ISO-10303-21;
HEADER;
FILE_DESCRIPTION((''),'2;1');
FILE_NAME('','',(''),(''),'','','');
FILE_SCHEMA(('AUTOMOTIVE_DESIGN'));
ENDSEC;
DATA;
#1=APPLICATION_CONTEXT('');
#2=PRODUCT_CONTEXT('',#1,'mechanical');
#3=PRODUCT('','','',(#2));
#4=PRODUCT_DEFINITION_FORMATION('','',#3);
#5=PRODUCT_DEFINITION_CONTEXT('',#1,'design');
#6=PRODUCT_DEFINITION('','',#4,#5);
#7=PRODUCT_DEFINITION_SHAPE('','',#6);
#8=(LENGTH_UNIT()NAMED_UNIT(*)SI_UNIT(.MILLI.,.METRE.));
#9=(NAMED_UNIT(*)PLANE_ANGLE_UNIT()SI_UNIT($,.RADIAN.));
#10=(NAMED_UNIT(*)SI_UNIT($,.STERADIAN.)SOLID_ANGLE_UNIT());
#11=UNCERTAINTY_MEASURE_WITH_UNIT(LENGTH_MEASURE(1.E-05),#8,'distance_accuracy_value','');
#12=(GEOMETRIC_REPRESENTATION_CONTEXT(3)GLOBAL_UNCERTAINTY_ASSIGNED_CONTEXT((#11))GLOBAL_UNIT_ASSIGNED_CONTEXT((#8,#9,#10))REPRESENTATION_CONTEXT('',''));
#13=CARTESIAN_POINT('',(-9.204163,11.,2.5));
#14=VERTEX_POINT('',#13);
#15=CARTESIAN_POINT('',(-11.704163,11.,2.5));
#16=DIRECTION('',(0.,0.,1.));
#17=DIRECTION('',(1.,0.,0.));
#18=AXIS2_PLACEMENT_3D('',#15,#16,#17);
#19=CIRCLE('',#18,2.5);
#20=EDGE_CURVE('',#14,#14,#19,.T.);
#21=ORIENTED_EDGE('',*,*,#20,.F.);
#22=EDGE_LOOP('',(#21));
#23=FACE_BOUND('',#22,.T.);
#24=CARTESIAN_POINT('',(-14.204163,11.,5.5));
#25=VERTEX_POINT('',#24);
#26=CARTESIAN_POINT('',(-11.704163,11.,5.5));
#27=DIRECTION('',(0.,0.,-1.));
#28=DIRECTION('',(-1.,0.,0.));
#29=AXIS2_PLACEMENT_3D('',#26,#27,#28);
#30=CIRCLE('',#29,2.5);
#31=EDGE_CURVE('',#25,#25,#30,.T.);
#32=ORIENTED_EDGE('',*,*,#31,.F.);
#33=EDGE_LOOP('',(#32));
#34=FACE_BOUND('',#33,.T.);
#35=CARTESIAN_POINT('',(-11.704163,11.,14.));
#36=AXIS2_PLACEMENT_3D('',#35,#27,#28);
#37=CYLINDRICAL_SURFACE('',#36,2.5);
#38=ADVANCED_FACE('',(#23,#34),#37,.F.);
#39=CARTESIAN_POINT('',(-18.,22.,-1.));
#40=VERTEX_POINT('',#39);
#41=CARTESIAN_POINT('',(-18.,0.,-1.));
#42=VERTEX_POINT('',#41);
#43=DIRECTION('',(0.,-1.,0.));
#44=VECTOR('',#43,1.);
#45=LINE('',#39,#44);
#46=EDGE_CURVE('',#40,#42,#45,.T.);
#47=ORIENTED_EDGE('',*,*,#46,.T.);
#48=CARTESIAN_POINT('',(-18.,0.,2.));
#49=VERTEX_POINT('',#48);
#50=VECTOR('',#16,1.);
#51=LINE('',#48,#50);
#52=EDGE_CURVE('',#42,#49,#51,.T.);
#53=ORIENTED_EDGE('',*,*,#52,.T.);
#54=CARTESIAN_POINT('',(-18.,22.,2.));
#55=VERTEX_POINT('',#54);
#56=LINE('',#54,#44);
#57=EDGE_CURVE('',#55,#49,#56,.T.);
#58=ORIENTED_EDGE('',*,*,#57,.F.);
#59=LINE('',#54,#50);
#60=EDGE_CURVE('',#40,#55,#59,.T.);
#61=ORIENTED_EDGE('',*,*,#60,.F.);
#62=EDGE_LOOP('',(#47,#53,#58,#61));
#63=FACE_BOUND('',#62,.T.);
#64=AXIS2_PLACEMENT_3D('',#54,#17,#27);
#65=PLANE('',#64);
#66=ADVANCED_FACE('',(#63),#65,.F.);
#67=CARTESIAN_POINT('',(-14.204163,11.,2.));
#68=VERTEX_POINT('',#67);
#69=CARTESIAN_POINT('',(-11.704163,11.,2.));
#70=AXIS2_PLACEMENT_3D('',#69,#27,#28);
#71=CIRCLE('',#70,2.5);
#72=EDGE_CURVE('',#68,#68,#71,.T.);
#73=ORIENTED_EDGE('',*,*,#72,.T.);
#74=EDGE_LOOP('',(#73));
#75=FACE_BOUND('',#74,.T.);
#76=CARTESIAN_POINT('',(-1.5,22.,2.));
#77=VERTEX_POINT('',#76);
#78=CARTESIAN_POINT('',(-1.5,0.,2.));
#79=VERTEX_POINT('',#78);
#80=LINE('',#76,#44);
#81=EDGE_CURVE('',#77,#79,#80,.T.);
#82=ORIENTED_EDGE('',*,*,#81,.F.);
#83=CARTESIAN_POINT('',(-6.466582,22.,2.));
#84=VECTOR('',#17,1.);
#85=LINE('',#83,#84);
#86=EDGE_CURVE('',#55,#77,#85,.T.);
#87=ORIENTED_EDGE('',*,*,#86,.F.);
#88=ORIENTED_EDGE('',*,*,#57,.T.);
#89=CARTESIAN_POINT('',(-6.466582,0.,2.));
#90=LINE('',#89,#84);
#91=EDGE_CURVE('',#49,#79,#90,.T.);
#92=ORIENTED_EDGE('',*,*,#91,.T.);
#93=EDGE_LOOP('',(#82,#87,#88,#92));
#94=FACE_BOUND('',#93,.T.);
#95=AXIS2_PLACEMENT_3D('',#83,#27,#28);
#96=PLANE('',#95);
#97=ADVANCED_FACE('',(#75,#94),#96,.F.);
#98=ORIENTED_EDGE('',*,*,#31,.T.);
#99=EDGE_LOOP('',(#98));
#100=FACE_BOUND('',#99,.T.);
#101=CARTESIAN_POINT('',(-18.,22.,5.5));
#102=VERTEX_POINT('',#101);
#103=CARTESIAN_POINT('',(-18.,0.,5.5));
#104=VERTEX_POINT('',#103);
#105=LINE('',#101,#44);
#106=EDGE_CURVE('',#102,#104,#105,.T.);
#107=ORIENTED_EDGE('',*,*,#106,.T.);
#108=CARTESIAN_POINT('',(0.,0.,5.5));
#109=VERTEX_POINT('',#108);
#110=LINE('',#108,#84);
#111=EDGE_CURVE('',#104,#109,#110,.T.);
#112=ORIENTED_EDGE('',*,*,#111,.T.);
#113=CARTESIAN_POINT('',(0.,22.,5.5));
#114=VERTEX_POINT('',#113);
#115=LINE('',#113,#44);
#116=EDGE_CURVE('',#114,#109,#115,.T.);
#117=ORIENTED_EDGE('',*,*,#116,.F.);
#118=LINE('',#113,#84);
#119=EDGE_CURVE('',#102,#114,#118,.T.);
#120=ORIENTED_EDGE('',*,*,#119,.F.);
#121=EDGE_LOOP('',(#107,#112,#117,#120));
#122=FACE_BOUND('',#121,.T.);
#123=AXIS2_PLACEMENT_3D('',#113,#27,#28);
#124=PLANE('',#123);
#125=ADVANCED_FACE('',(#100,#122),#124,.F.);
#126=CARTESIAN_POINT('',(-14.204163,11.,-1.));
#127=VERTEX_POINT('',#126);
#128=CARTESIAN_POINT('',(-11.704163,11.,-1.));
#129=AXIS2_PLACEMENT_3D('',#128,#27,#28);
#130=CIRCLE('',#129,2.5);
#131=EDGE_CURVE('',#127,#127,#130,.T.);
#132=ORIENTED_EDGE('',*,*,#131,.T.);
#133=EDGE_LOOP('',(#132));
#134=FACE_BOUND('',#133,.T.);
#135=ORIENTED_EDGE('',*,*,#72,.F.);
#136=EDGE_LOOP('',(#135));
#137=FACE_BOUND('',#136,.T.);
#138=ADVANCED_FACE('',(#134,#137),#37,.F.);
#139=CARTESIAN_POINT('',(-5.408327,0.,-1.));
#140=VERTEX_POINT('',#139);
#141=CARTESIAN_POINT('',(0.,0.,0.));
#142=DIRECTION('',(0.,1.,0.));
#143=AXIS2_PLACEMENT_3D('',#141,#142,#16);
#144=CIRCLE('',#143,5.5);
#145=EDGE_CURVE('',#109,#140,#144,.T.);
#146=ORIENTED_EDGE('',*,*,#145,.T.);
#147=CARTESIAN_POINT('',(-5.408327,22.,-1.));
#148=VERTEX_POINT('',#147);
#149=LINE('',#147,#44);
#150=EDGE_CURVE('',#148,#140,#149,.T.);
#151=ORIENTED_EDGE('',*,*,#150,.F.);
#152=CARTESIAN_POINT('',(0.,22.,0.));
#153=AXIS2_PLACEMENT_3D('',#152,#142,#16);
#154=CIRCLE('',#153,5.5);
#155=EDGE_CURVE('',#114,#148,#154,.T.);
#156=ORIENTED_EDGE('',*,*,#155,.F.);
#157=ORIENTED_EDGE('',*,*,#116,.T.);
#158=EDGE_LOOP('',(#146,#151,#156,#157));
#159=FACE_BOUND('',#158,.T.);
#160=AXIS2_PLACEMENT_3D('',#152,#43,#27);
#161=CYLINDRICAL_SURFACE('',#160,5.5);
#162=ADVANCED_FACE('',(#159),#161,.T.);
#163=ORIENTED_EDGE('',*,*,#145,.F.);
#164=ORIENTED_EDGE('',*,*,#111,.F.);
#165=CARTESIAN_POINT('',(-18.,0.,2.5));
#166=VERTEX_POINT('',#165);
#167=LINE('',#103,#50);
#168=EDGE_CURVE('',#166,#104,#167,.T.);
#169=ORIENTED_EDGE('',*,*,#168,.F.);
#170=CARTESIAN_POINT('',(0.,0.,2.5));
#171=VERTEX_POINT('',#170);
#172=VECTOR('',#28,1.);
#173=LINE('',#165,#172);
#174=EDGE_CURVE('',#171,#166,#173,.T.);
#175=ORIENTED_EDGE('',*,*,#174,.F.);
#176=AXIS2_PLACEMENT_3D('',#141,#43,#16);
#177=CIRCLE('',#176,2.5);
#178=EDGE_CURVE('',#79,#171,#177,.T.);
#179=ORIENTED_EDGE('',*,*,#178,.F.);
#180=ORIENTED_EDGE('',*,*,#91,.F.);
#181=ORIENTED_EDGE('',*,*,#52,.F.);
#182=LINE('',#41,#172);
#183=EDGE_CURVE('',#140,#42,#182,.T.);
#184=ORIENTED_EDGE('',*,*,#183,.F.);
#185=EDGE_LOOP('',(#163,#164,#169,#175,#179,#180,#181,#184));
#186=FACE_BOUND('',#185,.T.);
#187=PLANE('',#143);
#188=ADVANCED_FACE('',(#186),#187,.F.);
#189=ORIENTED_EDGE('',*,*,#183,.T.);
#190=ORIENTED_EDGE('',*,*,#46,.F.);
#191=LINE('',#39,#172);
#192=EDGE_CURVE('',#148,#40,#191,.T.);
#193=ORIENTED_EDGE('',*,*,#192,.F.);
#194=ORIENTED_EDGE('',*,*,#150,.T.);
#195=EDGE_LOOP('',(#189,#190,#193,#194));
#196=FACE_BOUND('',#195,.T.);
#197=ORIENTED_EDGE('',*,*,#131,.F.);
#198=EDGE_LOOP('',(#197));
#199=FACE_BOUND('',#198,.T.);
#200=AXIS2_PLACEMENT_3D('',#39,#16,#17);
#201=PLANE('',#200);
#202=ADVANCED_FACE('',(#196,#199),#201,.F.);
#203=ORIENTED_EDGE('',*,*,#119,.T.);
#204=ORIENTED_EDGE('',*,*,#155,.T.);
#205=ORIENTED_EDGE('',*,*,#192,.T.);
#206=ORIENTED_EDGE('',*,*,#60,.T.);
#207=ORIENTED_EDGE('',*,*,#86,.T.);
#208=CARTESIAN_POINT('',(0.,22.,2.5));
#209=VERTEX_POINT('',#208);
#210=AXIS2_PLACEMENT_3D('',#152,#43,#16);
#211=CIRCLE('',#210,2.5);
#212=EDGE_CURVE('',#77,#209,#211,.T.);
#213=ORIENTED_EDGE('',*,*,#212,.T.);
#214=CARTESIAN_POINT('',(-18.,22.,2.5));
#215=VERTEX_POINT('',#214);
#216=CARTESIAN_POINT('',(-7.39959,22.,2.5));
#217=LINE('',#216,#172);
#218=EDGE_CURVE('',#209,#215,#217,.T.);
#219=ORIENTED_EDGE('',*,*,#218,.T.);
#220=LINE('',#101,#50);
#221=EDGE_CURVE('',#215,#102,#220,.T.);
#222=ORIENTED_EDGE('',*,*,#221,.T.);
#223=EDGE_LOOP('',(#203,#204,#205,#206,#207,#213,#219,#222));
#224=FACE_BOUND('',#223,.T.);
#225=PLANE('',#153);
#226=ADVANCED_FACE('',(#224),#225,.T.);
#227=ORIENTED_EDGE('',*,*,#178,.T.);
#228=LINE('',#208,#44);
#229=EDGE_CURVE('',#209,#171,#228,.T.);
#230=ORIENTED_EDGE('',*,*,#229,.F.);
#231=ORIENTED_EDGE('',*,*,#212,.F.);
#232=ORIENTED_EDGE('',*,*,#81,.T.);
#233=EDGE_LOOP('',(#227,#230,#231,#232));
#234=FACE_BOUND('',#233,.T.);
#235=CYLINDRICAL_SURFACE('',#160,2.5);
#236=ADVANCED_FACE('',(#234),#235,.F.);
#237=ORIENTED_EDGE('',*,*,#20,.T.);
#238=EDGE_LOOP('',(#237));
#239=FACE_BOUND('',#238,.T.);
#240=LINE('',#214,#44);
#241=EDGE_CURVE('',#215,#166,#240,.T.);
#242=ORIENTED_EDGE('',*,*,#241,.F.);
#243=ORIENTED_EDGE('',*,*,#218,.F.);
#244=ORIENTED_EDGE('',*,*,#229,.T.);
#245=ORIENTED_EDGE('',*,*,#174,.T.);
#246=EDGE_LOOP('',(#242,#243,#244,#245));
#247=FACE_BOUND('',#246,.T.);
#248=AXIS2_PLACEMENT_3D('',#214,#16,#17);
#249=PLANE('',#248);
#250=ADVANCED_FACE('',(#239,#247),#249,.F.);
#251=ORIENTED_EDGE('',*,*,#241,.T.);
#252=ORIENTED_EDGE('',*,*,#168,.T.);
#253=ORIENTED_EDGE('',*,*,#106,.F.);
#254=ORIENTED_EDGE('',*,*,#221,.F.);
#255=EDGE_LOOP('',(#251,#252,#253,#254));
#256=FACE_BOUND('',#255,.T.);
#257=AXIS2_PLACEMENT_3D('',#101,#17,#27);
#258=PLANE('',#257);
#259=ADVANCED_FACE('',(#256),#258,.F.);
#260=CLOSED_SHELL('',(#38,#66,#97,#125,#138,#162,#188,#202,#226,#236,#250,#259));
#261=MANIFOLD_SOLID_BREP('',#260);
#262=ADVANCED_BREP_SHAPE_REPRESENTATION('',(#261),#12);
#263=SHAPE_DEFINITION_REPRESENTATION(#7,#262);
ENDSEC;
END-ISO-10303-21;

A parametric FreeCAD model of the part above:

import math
import FreeCAD as App
import Part
import Sketcher

doc = App.newDocument("Part")
body = doc.addObject("PartDesign::Body", "Body")

sketch1 = doc.addObject("Sketcher::SketchObject", "Sketch")
body.addObject(sketch1)
sketch1.AttachmentSupport = (doc.XZ_Plane, [""])
sketch1.MapMode = "FlatFace"
sketch1.addGeometry([
    Part.LineSegment(App.Vector(-18, 5.5, 0), App.Vector(0, 5.5, 0)),
    Part.ArcOfCircle(Part.Circle(App.Vector(0, 0, 0), App.Vector(0, 0, 1), 5.5), math.radians(-169.524318), math.radians(90)),
    Part.LineSegment(App.Vector(-5.408327, -1, 0), App.Vector(-18, -1, 0)),
    Part.LineSegment(App.Vector(-18, -1, 0), App.Vector(-18, 2, 0)),
    Part.LineSegment(App.Vector(-18, 2, 0), App.Vector(-1.5, 2, 0)),
    Part.ArcOfCircle(Part.Circle(App.Vector(0, 0, 0), App.Vector(0, 0, 1), 2.5), math.radians(126.869898), math.radians(450)),
    Part.LineSegment(App.Vector(0, 2.5, 0), App.Vector(-18, 2.5, 0)),
    Part.LineSegment(App.Vector(-18, 2.5, 0), App.Vector(-18, 5.5, 0)),
], False)
sketch1.addConstraint([
    Sketcher.Constraint("Tangent", 0, 2, 1, 2),
    Sketcher.Constraint("Coincident", 1, 1, 2, 1),
    Sketcher.Constraint("Coincident", 2, 2, 3, 1),
    Sketcher.Constraint("Coincident", 3, 2, 4, 1),
    Sketcher.Constraint("Coincident", 4, 2, 5, 1),
    Sketcher.Constraint("Tangent", 5, 2, 6, 1),
    Sketcher.Constraint("Coincident", 6, 2, 7, 1),
    Sketcher.Constraint("Coincident", 7, 2, 0, 1),
    Sketcher.Constraint("Horizontal", 0),
    Sketcher.Constraint("Horizontal", 2),
    Sketcher.Constraint("Vertical", 3),
    Sketcher.Constraint("Horizontal", 4),
    Sketcher.Constraint("Horizontal", 6),
    Sketcher.Constraint("Vertical", 7),
    Sketcher.Constraint("Coincident", 1, 3, -1, 1),
    Sketcher.Constraint("Coincident", 5, 3, -1, 1),
    Sketcher.Constraint("Vertical", 3, 2, 6, 2),
    Sketcher.Constraint("Equal", 3, 7),
    Sketcher.Constraint("Radius", 1, 5.5),
    Sketcher.Constraint("Radius", 5, 2.5),
    Sketcher.Constraint("DistanceX", 0, 1, 0, 2, 18.0),
    Sketcher.Constraint("DistanceX", 4, 1, 4, 2, 16.5),
])
pad1 = doc.addObject("PartDesign::Pad", "Pad")
body.addObject(pad1)
pad1.Profile = sketch1
pad1.Length = 22
pad1.Reversed = True

sketch2 = doc.addObject("Sketcher::SketchObject", "Sketch001")
body.addObject(sketch2)
sketch2.AttachmentSupport = (doc.XY_Plane, [""])
sketch2.MapMode = "FlatFace"
sketch2.AttachmentOffset = App.Placement(App.Vector(0, 0, -1), App.Rotation())
sketch2.addGeometry(Part.Circle(App.Vector(-11.704163, 11, 0), App.Vector(0, 0, 1), 2.5), False)
sketch2.addConstraint([
    Sketcher.Constraint("Diameter", 0, 5.0),
    Sketcher.Constraint("DistanceY", -1, 1, 0, 3, 11.0),
    Sketcher.Constraint("DistanceX", 0, 3, -1, 1, 11.704163),
])
pocket1 = doc.addObject("PartDesign::Pocket", "Pocket")
body.addObject(pocket1)
pocket1.Profile = sketch2
pocket1.Length = 15
pocket1.Reversed = True

doc.recompute()
